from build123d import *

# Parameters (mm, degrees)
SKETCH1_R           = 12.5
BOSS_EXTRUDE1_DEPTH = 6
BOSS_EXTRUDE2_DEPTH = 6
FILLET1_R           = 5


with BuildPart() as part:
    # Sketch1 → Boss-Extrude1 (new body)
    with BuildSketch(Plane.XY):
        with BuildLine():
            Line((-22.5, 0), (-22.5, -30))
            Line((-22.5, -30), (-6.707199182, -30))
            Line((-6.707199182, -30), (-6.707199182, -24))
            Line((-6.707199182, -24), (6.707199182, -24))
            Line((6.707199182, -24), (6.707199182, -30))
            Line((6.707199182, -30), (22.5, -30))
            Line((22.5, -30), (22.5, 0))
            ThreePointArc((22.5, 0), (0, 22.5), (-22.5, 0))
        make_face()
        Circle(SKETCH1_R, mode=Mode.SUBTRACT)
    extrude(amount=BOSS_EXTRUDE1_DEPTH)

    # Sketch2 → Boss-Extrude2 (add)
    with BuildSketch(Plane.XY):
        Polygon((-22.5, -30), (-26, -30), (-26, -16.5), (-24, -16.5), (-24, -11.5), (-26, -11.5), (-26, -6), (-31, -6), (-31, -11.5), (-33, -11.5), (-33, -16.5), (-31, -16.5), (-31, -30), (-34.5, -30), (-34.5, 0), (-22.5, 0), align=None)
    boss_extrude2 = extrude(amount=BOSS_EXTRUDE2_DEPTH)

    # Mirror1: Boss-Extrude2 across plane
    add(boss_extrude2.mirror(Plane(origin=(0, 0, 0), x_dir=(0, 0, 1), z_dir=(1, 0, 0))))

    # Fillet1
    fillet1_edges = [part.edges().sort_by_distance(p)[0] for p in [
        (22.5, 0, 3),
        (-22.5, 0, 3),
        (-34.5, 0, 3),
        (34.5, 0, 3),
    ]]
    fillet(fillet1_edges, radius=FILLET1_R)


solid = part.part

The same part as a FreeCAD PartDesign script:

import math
import FreeCAD as App
import Part
import Sketcher


def edges_at(feature, points):
    """Names of the edges that pass closest to the given points."""
    edges = feature.Shape.Edges
    near = lambda p: min(range(len(edges)), key=lambda i: edges[i].distToShape(Part.Vertex(*p))[0])
    return sorted({f"Edge{near(p) + 1}" for p in points})


def add_polygon(sketch, points):
    """Adds a closed chain of lines whose ends are joined by coincident constraints."""
    first, n = sketch.GeometryCount, len(points)
    for a, b in zip(points, points[1:] + points[:1]):
        sketch.addGeometry(Part.LineSegment(App.Vector(*a, 0), App.Vector(*b, 0)), False)
    for i in range(n):
        sketch.addConstraint(Sketcher.Constraint("Coincident", first + i, 2, first + (i + 1) % n, 1))

doc = App.newDocument("Part")
body = doc.addObject("PartDesign::Body", "Body")

# Sketch on XY plane
sketch1 = doc.addObject("Sketcher::SketchObject", "Sketch")
body.addObject(sketch1)
sketch1.AttachmentSupport = (doc.XY_Plane, [""])
sketch1.MapMode = "FlatFace"
sketch1.addGeometry([
    Part.LineSegment(App.Vector(-22, 0, 0), App.Vector(-22, -30, 0)),  # 0
    Part.LineSegment(App.Vector(-22, -30, 0), App.Vector(-7, -30, 0)),  # 1
    Part.LineSegment(App.Vector(-7, -30, 0), App.Vector(-7, -24, 0)),  # 2
    Part.LineSegment(App.Vector(-7, -24, 0), App.Vector(7, -24, 0)),  # 3
    Part.LineSegment(App.Vector(7, -24, 0), App.Vector(7, -30, 0)),  # 4
    Part.LineSegment(App.Vector(7, -30, 0), App.Vector(22, -30, 0)),  # 5
    Part.LineSegment(App.Vector(22, -30, 0), App.Vector(22, 0, 0)),  # 6
    Part.ArcOfCircle(Part.Circle(App.Vector(0, 0, 0), App.Vector(0, 0, 1), 22), math.radians(0), math.radians(180)),  # 7
    Part.Circle(App.Vector(0, 0, 0), App.Vector(0, 0, 1), 12),  # 8
], False)
sketch1.addConstraint([
    Sketcher.Constraint("Coincident", 0, 2, 1, 1),
    Sketcher.Constraint("Coincident", 1, 2, 2, 1),
    Sketcher.Constraint("Coincident", 2, 2, 3, 1),
    Sketcher.Constraint("Coincident", 3, 2, 4, 1),
    Sketcher.Constraint("Coincident", 4, 2, 5, 1),
    Sketcher.Constraint("Coincident", 5, 2, 6, 1),
    Sketcher.Constraint("Tangent", 6, 2, 7, 1),
    Sketcher.Constraint("Tangent", 7, 2, 0, 1),
    Sketcher.Constraint("Vertical", 0),
    Sketcher.Constraint("Horizontal", 1),
    Sketcher.Constraint("Vertical", 2),
    Sketcher.Constraint("Horizontal", 3),
    Sketcher.Constraint("Vertical", 4),
    Sketcher.Constraint("Horizontal", 5),
    Sketcher.Constraint("Vertical", 6),
    Sketcher.Constraint("Coincident", 7, 3, -1, 1),
    Sketcher.Constraint("Coincident", 8, 3, -1, 1),
    Sketcher.Constraint("Symmetric", 1, 2, 4, 2, -2),
    Sketcher.Constraint("Diameter", 8, 25.0),
    Sketcher.Constraint("Radius", 7, 22.5),
    Sketcher.Constraint("DistanceY", 0, 2, 0, 1, 30.0),
    Sketcher.Constraint("DistanceY", 2, 1, 2, 2, 6.0),
    Sketcher.Constraint("DistanceX", 1, 1, 1, 2, 15.792801),
])
pad1 = doc.addObject("PartDesign::Pad", "Pad")
body.addObject(pad1)
pad1.Profile = sketch1
pad1.Length = 6

# Sketch on XY plane
sketch2 = doc.addObject("Sketcher::SketchObject", "Sketch001")
body.addObject(sketch2)
sketch2.AttachmentSupport = (doc.XY_Plane, [""])
sketch2.MapMode = "FlatFace"
add_polygon(sketch2, [(-26, -30), (-22.5, -30), (-22.5, 0), (-34.5, 0), (-34.5, -30), (-31, -30), (-31, -16.5), (-33, -16.5), (-33, -11.5), (-31, -11.5), (-31, -6), (-26, -6), (-26, -11.5), (-24, -11.5), (-24, -16.5), (-26, -16.5)])  # lines 0-15
sketch2.addConstraint([
    Sketcher.Constraint("Horizontal", 0),
    Sketcher.Constraint("Vertical", 1),
    Sketcher.Constraint("Horizontal", 2),
    Sketcher.Constraint("Vertical", 3),
    Sketcher.Constraint("Horizontal", 4),
    Sketcher.Constraint("Vertical", 5),
    Sketcher.Constraint("Horizontal", 6),
    Sketcher.Constraint("Vertical", 7),
    Sketcher.Constraint("Horizontal", 8),
    Sketcher.Constraint("Vertical", 9),
    Sketcher.Constraint("Horizontal", 10),
    Sketcher.Constraint("Vertical", 11),
    Sketcher.Constraint("Horizontal", 12),
    Sketcher.Constraint("Vertical", 13),
    Sketcher.Constraint("Horizontal", 14),
    Sketcher.Constraint("Vertical", 15),
    Sketcher.Constraint("PointOnObject", 1, 2, -1),
    Sketcher.Constraint("Horizontal", 0, 2, 3, 2),
    Sketcher.Constraint("Horizontal", 8, 2, 11, 2),
    Sketcher.Constraint("Horizontal", 6, 2, 13, 2),
    Sketcher.Constraint("Vertical", 5, 2, 8, 2),
    Sketcher.Constraint("Vertical", 11, 2, 14, 2),
    Sketcher.Constraint("Equal", 0, 4),
    Sketcher.Constraint("Equal", 8, 12),
    Sketcher.Constraint("Equal", 10, 7),
    Sketcher.Constraint("DistanceX", 2, 2, 2, 1, 12.0),
    Sketcher.Constraint("DistanceX", 6, 2, 6, 1, 2.0),
    Sketcher.Constraint("DistanceX", 10, 1, 10, 2, 5.0),
    Sketcher.Constraint("DistanceY", 1, 1, 1, 2, 30.0),
    Sketcher.Constraint("DistanceY", 5, 1, 5, 2, 13.5),
    Sketcher.Constraint("DistanceY", 9, 1, 9, 2, 5.5),
    Sketcher.Constraint("DistanceX", 4, 2, -1, 1, 31.0),
])
pad2 = doc.addObject("PartDesign::Pad", "Pad001")
body.addObject(pad2)
pad2.Profile = sketch2
pad2.Length = 6
doc.recompute()

mirrored = doc.addObject("PartDesign::Mirrored", "Mirrored")
body.addObject(mirrored)
mirrored.Originals = [pad2]
mirrored.MirrorPlane = (doc.YZ_Plane, [""])
body.Tip = mirrored
doc.recompute()

fillet = doc.addObject("PartDesign::Fillet", "Fillet")
body.addObject(fillet)
fillet.Base = (mirrored, edges_at(mirrored, [
    (22.5, 0, 3),
    (-22.5, 0, 3),
    (-34.5, 0, 3),
    (34.5, 0, 3),
]))
fillet.Radius = 5

doc.recompute()
